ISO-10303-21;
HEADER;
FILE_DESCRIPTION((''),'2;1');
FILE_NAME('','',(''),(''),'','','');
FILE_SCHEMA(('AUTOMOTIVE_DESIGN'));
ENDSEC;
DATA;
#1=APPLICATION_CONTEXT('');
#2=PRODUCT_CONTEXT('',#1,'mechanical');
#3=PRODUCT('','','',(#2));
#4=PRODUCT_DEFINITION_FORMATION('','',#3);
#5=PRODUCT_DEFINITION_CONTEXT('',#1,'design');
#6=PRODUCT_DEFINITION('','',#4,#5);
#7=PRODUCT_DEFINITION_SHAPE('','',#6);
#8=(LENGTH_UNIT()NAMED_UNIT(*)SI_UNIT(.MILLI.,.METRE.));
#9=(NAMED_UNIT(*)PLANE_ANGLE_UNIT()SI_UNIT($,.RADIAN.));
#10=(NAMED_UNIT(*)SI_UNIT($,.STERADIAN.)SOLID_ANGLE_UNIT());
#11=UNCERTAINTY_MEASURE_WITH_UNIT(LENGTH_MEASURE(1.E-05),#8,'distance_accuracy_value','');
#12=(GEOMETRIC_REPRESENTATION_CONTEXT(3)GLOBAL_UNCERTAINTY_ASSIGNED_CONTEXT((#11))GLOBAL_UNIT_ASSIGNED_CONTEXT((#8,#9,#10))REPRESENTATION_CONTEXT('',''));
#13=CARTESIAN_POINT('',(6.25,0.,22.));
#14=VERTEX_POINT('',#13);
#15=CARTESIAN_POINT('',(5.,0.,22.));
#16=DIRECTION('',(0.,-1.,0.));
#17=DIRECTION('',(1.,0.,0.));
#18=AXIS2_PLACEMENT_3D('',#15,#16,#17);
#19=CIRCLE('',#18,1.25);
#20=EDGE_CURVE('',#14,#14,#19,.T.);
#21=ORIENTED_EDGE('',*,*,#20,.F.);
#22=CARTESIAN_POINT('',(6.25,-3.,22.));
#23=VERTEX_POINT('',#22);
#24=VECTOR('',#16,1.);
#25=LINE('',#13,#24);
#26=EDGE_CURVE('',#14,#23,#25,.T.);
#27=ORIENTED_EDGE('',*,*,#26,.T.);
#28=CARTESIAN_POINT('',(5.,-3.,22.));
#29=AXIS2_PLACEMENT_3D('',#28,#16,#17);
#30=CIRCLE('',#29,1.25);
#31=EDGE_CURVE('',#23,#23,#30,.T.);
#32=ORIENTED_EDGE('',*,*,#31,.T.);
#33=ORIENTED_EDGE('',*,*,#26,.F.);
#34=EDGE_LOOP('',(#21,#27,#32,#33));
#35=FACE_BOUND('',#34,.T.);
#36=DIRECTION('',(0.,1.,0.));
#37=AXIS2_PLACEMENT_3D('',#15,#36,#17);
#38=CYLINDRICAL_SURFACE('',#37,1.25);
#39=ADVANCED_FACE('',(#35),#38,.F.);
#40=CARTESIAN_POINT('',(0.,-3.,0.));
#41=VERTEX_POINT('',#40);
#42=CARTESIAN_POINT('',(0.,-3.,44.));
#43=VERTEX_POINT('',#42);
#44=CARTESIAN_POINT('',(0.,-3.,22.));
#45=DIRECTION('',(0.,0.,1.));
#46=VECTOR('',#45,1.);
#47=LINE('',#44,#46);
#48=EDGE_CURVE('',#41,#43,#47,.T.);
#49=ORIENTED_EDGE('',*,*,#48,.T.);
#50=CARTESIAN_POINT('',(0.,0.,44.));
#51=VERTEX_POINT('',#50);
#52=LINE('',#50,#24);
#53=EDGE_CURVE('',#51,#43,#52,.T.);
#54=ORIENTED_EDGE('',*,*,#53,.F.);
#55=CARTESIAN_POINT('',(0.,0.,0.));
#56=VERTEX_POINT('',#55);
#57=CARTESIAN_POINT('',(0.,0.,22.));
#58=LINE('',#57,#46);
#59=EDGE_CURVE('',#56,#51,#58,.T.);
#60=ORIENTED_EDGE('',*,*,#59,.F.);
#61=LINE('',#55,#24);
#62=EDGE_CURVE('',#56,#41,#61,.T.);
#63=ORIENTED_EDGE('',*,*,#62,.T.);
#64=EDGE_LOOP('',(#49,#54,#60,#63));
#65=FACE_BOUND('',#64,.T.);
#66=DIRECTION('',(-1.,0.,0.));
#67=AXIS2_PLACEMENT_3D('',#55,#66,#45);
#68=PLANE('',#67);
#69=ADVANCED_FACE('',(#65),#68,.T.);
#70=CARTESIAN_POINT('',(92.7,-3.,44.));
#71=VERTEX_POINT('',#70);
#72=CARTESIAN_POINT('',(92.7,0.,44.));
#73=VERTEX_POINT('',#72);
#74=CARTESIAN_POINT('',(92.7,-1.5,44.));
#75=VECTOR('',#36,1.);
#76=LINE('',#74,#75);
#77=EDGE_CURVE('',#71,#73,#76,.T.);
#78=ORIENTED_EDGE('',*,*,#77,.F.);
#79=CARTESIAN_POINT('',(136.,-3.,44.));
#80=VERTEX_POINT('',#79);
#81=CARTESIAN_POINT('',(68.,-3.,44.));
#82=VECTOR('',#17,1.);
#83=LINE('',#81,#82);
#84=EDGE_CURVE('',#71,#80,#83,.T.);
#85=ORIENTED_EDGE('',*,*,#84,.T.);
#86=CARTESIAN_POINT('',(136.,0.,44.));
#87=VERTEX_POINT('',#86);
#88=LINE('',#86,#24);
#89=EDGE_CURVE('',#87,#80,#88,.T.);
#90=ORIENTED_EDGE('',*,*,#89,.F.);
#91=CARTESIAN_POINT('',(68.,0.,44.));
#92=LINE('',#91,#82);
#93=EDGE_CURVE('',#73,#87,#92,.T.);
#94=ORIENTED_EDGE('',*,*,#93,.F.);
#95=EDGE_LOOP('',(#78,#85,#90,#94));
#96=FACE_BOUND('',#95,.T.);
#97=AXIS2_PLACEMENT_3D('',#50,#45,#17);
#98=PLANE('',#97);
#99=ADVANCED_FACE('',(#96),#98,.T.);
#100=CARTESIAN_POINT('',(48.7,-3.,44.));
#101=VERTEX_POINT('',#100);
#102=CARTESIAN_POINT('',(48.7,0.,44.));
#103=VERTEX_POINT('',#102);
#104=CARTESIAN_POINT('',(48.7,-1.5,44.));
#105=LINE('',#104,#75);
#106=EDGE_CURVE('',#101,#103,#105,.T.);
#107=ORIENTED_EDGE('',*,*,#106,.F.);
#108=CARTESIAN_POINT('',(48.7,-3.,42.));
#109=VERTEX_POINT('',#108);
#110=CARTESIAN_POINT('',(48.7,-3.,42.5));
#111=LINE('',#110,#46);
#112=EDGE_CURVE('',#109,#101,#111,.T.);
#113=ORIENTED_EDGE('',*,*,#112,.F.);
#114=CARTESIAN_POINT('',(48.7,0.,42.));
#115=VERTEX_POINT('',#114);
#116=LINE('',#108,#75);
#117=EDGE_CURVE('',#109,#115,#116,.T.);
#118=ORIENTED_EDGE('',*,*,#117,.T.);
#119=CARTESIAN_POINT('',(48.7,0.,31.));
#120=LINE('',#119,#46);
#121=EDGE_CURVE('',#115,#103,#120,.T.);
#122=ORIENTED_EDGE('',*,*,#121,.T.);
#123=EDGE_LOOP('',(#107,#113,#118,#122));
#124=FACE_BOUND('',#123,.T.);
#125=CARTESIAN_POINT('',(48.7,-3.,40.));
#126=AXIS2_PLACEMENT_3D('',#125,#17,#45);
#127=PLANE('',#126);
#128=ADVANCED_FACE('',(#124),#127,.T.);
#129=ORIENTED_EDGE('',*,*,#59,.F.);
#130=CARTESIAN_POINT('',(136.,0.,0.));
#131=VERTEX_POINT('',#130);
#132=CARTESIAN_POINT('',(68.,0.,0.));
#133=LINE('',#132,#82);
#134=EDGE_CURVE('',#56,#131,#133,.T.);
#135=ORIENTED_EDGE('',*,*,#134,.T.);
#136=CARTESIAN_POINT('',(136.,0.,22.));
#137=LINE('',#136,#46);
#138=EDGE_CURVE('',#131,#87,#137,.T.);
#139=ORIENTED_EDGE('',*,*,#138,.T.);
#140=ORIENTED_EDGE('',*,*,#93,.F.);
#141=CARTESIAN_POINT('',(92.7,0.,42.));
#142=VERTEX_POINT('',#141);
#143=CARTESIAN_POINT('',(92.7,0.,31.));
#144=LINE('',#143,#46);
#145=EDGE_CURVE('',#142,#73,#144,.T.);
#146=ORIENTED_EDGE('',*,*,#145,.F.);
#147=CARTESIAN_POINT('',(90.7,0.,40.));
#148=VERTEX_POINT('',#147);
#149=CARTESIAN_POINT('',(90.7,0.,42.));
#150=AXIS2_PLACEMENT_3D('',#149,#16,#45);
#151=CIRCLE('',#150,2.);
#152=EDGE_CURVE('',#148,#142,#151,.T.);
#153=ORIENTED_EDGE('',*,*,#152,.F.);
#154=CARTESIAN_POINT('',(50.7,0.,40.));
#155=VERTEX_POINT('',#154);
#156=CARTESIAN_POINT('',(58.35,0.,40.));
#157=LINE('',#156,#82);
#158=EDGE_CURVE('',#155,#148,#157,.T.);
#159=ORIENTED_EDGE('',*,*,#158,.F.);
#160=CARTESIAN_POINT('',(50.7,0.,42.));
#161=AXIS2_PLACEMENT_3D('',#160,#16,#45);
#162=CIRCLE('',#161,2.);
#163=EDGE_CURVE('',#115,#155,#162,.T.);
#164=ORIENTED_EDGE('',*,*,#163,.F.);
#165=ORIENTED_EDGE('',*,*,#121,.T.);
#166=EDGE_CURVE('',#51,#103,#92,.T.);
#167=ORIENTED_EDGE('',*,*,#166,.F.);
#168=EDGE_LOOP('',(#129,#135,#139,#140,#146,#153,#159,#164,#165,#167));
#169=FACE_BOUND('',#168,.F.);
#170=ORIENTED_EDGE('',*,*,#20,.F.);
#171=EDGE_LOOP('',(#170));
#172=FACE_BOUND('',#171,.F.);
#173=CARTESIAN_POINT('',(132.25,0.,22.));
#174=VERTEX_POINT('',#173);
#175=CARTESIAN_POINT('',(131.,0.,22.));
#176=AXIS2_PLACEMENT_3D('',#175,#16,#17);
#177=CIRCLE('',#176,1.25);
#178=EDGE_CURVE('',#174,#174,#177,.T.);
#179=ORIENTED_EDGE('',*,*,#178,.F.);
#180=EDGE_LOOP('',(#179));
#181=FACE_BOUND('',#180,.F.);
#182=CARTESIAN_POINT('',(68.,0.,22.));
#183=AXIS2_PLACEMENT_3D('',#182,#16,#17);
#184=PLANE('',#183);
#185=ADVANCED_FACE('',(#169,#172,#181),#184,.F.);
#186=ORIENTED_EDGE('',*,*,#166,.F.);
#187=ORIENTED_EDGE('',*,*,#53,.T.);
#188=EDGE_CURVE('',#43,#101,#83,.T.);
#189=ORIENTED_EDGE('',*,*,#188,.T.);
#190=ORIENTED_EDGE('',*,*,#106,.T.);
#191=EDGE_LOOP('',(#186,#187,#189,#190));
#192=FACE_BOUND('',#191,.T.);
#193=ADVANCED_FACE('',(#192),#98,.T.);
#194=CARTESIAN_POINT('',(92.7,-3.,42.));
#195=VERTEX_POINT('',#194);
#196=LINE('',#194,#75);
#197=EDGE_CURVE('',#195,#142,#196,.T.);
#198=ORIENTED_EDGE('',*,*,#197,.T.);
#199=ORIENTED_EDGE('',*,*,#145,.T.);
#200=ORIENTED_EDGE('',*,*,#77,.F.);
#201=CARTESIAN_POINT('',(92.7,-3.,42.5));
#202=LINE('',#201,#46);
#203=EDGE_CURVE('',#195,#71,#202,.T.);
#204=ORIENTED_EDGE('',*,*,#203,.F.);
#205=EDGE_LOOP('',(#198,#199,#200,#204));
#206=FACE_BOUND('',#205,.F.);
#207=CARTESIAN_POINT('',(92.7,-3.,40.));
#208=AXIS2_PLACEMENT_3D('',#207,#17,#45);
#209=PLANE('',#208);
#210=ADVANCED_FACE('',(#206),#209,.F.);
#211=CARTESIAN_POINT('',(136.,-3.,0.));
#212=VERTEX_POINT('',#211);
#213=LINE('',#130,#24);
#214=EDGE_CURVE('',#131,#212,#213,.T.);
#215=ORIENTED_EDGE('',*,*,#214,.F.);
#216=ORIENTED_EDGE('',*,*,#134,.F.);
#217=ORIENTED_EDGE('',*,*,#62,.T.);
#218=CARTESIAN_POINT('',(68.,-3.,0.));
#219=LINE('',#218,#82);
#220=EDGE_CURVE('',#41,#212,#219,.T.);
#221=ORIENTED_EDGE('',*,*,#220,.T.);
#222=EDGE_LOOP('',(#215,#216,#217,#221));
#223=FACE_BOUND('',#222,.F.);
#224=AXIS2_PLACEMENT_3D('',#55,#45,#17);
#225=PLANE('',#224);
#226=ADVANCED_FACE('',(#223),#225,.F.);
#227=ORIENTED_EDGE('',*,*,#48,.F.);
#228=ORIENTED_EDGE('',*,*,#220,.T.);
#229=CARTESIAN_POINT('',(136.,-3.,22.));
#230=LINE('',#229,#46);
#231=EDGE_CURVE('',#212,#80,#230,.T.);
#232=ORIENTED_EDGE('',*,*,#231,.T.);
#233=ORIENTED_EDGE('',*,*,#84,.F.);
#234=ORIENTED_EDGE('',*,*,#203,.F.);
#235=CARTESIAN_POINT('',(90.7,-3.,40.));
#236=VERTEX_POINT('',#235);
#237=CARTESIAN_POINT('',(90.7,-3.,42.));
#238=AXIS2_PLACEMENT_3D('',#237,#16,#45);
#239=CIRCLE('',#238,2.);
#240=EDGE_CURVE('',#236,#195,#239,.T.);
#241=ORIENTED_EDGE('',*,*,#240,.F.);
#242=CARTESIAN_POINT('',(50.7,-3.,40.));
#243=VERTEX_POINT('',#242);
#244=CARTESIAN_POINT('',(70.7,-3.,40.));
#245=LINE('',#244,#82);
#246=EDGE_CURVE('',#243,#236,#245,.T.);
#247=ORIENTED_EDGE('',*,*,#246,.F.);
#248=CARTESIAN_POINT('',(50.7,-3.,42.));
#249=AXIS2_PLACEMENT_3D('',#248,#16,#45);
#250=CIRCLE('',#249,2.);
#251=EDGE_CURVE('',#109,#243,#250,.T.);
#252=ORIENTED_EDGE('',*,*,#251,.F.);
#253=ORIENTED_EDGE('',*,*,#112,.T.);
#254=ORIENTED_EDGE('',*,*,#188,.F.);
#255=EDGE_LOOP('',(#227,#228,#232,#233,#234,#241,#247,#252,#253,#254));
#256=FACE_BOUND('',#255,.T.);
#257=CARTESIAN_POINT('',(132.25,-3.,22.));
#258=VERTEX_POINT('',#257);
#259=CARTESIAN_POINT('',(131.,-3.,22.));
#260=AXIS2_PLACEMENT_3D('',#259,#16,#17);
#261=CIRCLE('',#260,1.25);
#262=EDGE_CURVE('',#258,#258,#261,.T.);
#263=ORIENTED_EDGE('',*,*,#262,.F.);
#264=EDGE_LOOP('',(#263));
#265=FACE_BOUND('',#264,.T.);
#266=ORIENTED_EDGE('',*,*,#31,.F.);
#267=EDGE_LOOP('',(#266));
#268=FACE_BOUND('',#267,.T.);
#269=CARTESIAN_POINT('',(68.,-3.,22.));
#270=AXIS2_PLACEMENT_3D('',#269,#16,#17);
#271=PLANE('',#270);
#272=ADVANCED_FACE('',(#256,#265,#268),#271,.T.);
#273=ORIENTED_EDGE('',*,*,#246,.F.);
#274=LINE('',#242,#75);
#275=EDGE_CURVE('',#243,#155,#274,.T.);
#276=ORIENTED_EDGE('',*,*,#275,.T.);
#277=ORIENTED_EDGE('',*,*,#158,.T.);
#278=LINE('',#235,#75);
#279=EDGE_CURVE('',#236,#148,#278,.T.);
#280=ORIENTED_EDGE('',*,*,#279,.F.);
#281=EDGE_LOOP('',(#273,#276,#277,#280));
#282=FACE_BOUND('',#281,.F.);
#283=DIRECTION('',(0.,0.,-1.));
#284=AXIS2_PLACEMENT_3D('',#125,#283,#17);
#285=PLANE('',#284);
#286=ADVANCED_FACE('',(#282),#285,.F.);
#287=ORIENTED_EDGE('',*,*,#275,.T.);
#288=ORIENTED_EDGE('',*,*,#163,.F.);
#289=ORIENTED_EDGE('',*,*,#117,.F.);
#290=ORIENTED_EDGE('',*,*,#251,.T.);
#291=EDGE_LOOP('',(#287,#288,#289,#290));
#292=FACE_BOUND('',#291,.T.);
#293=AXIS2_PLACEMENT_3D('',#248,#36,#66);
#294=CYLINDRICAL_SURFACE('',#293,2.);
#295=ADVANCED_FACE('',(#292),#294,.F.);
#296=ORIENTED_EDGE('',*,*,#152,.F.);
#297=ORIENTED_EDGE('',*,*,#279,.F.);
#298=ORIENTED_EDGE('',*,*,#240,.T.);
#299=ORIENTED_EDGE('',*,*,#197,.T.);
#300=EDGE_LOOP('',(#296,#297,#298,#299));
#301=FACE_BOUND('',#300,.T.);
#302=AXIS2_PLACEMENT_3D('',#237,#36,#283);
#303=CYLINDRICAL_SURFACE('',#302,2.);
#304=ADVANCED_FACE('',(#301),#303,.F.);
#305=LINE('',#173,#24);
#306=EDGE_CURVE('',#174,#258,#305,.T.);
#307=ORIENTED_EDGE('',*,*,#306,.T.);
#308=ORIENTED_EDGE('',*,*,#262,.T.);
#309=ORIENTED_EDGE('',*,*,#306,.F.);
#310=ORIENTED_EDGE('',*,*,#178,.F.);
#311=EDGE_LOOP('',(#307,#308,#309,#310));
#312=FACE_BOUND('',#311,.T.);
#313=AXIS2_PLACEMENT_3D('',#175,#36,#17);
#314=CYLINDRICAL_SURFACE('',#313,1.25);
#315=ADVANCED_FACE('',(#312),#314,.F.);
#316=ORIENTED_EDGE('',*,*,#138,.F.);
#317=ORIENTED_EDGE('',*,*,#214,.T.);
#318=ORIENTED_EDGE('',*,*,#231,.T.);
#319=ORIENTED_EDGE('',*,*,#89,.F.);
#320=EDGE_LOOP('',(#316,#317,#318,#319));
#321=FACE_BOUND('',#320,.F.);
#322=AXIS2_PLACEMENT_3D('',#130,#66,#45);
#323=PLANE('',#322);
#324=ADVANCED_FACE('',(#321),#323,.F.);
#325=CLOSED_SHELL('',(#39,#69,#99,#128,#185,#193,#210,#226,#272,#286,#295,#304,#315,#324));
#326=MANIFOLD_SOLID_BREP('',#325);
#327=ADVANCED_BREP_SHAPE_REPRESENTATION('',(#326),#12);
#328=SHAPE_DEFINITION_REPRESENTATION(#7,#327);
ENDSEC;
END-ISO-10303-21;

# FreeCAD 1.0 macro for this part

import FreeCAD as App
import Part
import Sketcher
from FreeCAD import Vector
Q = App.Units.Quantity


def edges_at(feature, points):
    """Names of the edges that pass closest to the given points."""
    edges = feature.Shape.Edges
    near = lambda p: min(range(len(edges)), key=lambda i: edges[i].distToShape(Part.Vertex(*p))[0])
    return sorted({f"Edge{near(p) + 1}" for p in points})

doc = App.newDocument("Part")
params = doc.addObject("Spreadsheet::Sheet", "Params")
for row, (alias, value) in enumerate([
    ("sketch1_diameter", "2.5 mm"),
    ("sketch1_width", "136 mm"),
    ("sketch1_height", "44 mm"),
    ("pad1_length", "3 mm"),
    ("sketch2_width", "44 mm"),
    ("sketch2_height", "5 mm"),
    ("fillet_radius", "2 mm"),
], start=1):
    params.set(f"A{row}", alias)
    params.set(f"B{row}", "=" + value)
    params.setAlias(f"B{row}", alias)

body = doc.addObject("PartDesign::Body", "Body")

sketch1 = body.newObject("Sketcher::SketchObject", "Sketch")
sketch1.AttachmentSupport = (doc.getObject("XZ_Plane"), [""])
sketch1.MapMode = "FlatFace"
sketch1.addGeometry(Part.LineSegment(Vector(0, 44, 0), Vector(0, 0, 0)), False)
sketch1.addGeometry(Part.LineSegment(Vector(0, 0, 0), Vector(136, 0, 0)), False)
sketch1.addGeometry(Part.LineSegment(Vector(136, 0, 0), Vector(136, 44, 0)), False)
sketch1.addGeometry(Part.LineSegment(Vector(136, 44, 0), Vector(0, 44, 0)), False)
sketch1.addGeometry(Part.Circle(Vector(5, 22, 0), Vector(0, 0, 1), 1.2), False)
sketch1.addGeometry(Part.Circle(Vector(131, 22, 0), Vector(0, 0, 1), 1.2), False)
sketch1.addConstraint(Sketcher.Constraint("Coincident", 0, 2, 1, 1))
sketch1.addConstraint(Sketcher.Constraint("Coincident", 1, 2, 2, 1))
sketch1.addConstraint(Sketcher.Constraint("Coincident", 2, 2, 3, 1))
sketch1.addConstraint(Sketcher.Constraint("Coincident", 3, 2, 0, 1))
sketch1.addConstraint(Sketcher.Constraint("Vertical", 0))
sketch1.addConstraint(Sketcher.Constraint("Horizontal", 1))
sketch1.addConstraint(Sketcher.Constraint("Vertical", 2))
sketch1.addConstraint(Sketcher.Constraint("Horizontal", 3))
sketch1.addConstraint(Sketcher.Constraint("Coincident", 0, 2, -1, 1))
sketch1.addConstraint(Sketcher.Constraint("Equal", 4, 5))
sketch1.addConstraint(Sketcher.Constraint("Horizontal", 4, 3, 5, 3))
sketch1.addConstraint(Sketcher.Constraint("Diameter", 4, Q("2.5 mm")))
sketch1.addConstraint(Sketcher.Constraint("DistanceX", 1, 1, 1, 2, Q("136 mm")))
sketch1.addConstraint(Sketcher.Constraint("DistanceY", 0, 2, 0, 1, Q("44 mm")))
sketch1.addConstraint(Sketcher.Constraint("DistanceX", -1, 1, 4, 3, Q("5 mm")))
sketch1.addConstraint(Sketcher.Constraint("DistanceY", -1, 1, 4, 3, Q("22 mm")))
sketch1.addConstraint(Sketcher.Constraint("DistanceX", -1, 1, 5, 3, Q("131 mm")))
sketch1.setExpression("Constraints[11]", "Params.sketch1_diameter")
sketch1.setExpression("Constraints[12]", "Params.sketch1_width")
sketch1.setExpression("Constraints[13]", "Params.sketch1_height")
pad1 = body.newObject("PartDesign::Pad", "Pad")
pad1.Profile = sketch1
pad1.setExpression("Length", "Params.pad1_length")

sketch2 = body.newObject("Sketcher::SketchObject", "Sketch001")
sketch2.AttachmentSupport = (doc.getObject("XZ_Plane"), [""])
sketch2.MapMode = "FlatFace"
sketch2.AttachmentOffset = App.Placement(Vector(0, 0, 3), App.Rotation())
sketch2.addGeometry(Part.LineSegment(Vector(49, 45, 0), Vector(49, 40, 0)), False)
sketch2.addGeometry(Part.LineSegment(Vector(49, 40, 0), Vector(93, 40, 0)), False)
sketch2.addGeometry(Part.LineSegment(Vector(93, 40, 0), Vector(93, 45, 0)), False)
sketch2.addGeometry(Part.LineSegment(Vector(93, 45, 0), Vector(49, 45, 0)), False)
sketch2.addConstraint(Sketcher.Constraint("Coincident", 0, 2, 1, 1))
sketch2.addConstraint(Sketcher.Constraint("Coincident", 1, 2, 2, 1))
sketch2.addConstraint(Sketcher.Constraint("Coincident", 2, 2, 3, 1))
sketch2.addConstraint(Sketcher.Constraint("Coincident", 3, 2, 0, 1))
sketch2.addConstraint(Sketcher.Constraint("Vertical", 0))
sketch2.addConstraint(Sketcher.Constraint("Horizontal", 1))
sketch2.addConstraint(Sketcher.Constraint("Vertical", 2))
sketch2.addConstraint(Sketcher.Constraint("Horizontal", 3))
sketch2.addConstraint(Sketcher.Constraint("DistanceX", 1, 1, 1, 2, Q("44 mm")))
sketch2.addConstraint(Sketcher.Constraint("DistanceY", 0, 2, 0, 1, Q("5 mm")))
sketch2.addConstraint(Sketcher.Constraint("DistanceY", -1, 1, 0, 2, Q("40 mm")))
sketch2.addConstraint(Sketcher.Constraint("DistanceX", -1, 1, 0, 2, Q("48.7 mm")))
sketch2.setExpression("Constraints[8]", "Params.sketch2_width")
sketch2.setExpression("Constraints[9]", "Params.sketch2_height")
pocket1 = body.newObject("PartDesign::Pocket", "Pocket")
pocket1.Profile = sketch2
pocket1.Type = "ThroughAll"
doc.recompute()

fillet = body.newObject("PartDesign::Fillet", "Fillet")
fillet.Base = (pocket1, edges_at(pocket1, [(48.7, -1.5, 40), (92.7, -1.5, 40)]))
fillet.setExpression("Radius", "Params.fillet_radius")

doc.recompute()
